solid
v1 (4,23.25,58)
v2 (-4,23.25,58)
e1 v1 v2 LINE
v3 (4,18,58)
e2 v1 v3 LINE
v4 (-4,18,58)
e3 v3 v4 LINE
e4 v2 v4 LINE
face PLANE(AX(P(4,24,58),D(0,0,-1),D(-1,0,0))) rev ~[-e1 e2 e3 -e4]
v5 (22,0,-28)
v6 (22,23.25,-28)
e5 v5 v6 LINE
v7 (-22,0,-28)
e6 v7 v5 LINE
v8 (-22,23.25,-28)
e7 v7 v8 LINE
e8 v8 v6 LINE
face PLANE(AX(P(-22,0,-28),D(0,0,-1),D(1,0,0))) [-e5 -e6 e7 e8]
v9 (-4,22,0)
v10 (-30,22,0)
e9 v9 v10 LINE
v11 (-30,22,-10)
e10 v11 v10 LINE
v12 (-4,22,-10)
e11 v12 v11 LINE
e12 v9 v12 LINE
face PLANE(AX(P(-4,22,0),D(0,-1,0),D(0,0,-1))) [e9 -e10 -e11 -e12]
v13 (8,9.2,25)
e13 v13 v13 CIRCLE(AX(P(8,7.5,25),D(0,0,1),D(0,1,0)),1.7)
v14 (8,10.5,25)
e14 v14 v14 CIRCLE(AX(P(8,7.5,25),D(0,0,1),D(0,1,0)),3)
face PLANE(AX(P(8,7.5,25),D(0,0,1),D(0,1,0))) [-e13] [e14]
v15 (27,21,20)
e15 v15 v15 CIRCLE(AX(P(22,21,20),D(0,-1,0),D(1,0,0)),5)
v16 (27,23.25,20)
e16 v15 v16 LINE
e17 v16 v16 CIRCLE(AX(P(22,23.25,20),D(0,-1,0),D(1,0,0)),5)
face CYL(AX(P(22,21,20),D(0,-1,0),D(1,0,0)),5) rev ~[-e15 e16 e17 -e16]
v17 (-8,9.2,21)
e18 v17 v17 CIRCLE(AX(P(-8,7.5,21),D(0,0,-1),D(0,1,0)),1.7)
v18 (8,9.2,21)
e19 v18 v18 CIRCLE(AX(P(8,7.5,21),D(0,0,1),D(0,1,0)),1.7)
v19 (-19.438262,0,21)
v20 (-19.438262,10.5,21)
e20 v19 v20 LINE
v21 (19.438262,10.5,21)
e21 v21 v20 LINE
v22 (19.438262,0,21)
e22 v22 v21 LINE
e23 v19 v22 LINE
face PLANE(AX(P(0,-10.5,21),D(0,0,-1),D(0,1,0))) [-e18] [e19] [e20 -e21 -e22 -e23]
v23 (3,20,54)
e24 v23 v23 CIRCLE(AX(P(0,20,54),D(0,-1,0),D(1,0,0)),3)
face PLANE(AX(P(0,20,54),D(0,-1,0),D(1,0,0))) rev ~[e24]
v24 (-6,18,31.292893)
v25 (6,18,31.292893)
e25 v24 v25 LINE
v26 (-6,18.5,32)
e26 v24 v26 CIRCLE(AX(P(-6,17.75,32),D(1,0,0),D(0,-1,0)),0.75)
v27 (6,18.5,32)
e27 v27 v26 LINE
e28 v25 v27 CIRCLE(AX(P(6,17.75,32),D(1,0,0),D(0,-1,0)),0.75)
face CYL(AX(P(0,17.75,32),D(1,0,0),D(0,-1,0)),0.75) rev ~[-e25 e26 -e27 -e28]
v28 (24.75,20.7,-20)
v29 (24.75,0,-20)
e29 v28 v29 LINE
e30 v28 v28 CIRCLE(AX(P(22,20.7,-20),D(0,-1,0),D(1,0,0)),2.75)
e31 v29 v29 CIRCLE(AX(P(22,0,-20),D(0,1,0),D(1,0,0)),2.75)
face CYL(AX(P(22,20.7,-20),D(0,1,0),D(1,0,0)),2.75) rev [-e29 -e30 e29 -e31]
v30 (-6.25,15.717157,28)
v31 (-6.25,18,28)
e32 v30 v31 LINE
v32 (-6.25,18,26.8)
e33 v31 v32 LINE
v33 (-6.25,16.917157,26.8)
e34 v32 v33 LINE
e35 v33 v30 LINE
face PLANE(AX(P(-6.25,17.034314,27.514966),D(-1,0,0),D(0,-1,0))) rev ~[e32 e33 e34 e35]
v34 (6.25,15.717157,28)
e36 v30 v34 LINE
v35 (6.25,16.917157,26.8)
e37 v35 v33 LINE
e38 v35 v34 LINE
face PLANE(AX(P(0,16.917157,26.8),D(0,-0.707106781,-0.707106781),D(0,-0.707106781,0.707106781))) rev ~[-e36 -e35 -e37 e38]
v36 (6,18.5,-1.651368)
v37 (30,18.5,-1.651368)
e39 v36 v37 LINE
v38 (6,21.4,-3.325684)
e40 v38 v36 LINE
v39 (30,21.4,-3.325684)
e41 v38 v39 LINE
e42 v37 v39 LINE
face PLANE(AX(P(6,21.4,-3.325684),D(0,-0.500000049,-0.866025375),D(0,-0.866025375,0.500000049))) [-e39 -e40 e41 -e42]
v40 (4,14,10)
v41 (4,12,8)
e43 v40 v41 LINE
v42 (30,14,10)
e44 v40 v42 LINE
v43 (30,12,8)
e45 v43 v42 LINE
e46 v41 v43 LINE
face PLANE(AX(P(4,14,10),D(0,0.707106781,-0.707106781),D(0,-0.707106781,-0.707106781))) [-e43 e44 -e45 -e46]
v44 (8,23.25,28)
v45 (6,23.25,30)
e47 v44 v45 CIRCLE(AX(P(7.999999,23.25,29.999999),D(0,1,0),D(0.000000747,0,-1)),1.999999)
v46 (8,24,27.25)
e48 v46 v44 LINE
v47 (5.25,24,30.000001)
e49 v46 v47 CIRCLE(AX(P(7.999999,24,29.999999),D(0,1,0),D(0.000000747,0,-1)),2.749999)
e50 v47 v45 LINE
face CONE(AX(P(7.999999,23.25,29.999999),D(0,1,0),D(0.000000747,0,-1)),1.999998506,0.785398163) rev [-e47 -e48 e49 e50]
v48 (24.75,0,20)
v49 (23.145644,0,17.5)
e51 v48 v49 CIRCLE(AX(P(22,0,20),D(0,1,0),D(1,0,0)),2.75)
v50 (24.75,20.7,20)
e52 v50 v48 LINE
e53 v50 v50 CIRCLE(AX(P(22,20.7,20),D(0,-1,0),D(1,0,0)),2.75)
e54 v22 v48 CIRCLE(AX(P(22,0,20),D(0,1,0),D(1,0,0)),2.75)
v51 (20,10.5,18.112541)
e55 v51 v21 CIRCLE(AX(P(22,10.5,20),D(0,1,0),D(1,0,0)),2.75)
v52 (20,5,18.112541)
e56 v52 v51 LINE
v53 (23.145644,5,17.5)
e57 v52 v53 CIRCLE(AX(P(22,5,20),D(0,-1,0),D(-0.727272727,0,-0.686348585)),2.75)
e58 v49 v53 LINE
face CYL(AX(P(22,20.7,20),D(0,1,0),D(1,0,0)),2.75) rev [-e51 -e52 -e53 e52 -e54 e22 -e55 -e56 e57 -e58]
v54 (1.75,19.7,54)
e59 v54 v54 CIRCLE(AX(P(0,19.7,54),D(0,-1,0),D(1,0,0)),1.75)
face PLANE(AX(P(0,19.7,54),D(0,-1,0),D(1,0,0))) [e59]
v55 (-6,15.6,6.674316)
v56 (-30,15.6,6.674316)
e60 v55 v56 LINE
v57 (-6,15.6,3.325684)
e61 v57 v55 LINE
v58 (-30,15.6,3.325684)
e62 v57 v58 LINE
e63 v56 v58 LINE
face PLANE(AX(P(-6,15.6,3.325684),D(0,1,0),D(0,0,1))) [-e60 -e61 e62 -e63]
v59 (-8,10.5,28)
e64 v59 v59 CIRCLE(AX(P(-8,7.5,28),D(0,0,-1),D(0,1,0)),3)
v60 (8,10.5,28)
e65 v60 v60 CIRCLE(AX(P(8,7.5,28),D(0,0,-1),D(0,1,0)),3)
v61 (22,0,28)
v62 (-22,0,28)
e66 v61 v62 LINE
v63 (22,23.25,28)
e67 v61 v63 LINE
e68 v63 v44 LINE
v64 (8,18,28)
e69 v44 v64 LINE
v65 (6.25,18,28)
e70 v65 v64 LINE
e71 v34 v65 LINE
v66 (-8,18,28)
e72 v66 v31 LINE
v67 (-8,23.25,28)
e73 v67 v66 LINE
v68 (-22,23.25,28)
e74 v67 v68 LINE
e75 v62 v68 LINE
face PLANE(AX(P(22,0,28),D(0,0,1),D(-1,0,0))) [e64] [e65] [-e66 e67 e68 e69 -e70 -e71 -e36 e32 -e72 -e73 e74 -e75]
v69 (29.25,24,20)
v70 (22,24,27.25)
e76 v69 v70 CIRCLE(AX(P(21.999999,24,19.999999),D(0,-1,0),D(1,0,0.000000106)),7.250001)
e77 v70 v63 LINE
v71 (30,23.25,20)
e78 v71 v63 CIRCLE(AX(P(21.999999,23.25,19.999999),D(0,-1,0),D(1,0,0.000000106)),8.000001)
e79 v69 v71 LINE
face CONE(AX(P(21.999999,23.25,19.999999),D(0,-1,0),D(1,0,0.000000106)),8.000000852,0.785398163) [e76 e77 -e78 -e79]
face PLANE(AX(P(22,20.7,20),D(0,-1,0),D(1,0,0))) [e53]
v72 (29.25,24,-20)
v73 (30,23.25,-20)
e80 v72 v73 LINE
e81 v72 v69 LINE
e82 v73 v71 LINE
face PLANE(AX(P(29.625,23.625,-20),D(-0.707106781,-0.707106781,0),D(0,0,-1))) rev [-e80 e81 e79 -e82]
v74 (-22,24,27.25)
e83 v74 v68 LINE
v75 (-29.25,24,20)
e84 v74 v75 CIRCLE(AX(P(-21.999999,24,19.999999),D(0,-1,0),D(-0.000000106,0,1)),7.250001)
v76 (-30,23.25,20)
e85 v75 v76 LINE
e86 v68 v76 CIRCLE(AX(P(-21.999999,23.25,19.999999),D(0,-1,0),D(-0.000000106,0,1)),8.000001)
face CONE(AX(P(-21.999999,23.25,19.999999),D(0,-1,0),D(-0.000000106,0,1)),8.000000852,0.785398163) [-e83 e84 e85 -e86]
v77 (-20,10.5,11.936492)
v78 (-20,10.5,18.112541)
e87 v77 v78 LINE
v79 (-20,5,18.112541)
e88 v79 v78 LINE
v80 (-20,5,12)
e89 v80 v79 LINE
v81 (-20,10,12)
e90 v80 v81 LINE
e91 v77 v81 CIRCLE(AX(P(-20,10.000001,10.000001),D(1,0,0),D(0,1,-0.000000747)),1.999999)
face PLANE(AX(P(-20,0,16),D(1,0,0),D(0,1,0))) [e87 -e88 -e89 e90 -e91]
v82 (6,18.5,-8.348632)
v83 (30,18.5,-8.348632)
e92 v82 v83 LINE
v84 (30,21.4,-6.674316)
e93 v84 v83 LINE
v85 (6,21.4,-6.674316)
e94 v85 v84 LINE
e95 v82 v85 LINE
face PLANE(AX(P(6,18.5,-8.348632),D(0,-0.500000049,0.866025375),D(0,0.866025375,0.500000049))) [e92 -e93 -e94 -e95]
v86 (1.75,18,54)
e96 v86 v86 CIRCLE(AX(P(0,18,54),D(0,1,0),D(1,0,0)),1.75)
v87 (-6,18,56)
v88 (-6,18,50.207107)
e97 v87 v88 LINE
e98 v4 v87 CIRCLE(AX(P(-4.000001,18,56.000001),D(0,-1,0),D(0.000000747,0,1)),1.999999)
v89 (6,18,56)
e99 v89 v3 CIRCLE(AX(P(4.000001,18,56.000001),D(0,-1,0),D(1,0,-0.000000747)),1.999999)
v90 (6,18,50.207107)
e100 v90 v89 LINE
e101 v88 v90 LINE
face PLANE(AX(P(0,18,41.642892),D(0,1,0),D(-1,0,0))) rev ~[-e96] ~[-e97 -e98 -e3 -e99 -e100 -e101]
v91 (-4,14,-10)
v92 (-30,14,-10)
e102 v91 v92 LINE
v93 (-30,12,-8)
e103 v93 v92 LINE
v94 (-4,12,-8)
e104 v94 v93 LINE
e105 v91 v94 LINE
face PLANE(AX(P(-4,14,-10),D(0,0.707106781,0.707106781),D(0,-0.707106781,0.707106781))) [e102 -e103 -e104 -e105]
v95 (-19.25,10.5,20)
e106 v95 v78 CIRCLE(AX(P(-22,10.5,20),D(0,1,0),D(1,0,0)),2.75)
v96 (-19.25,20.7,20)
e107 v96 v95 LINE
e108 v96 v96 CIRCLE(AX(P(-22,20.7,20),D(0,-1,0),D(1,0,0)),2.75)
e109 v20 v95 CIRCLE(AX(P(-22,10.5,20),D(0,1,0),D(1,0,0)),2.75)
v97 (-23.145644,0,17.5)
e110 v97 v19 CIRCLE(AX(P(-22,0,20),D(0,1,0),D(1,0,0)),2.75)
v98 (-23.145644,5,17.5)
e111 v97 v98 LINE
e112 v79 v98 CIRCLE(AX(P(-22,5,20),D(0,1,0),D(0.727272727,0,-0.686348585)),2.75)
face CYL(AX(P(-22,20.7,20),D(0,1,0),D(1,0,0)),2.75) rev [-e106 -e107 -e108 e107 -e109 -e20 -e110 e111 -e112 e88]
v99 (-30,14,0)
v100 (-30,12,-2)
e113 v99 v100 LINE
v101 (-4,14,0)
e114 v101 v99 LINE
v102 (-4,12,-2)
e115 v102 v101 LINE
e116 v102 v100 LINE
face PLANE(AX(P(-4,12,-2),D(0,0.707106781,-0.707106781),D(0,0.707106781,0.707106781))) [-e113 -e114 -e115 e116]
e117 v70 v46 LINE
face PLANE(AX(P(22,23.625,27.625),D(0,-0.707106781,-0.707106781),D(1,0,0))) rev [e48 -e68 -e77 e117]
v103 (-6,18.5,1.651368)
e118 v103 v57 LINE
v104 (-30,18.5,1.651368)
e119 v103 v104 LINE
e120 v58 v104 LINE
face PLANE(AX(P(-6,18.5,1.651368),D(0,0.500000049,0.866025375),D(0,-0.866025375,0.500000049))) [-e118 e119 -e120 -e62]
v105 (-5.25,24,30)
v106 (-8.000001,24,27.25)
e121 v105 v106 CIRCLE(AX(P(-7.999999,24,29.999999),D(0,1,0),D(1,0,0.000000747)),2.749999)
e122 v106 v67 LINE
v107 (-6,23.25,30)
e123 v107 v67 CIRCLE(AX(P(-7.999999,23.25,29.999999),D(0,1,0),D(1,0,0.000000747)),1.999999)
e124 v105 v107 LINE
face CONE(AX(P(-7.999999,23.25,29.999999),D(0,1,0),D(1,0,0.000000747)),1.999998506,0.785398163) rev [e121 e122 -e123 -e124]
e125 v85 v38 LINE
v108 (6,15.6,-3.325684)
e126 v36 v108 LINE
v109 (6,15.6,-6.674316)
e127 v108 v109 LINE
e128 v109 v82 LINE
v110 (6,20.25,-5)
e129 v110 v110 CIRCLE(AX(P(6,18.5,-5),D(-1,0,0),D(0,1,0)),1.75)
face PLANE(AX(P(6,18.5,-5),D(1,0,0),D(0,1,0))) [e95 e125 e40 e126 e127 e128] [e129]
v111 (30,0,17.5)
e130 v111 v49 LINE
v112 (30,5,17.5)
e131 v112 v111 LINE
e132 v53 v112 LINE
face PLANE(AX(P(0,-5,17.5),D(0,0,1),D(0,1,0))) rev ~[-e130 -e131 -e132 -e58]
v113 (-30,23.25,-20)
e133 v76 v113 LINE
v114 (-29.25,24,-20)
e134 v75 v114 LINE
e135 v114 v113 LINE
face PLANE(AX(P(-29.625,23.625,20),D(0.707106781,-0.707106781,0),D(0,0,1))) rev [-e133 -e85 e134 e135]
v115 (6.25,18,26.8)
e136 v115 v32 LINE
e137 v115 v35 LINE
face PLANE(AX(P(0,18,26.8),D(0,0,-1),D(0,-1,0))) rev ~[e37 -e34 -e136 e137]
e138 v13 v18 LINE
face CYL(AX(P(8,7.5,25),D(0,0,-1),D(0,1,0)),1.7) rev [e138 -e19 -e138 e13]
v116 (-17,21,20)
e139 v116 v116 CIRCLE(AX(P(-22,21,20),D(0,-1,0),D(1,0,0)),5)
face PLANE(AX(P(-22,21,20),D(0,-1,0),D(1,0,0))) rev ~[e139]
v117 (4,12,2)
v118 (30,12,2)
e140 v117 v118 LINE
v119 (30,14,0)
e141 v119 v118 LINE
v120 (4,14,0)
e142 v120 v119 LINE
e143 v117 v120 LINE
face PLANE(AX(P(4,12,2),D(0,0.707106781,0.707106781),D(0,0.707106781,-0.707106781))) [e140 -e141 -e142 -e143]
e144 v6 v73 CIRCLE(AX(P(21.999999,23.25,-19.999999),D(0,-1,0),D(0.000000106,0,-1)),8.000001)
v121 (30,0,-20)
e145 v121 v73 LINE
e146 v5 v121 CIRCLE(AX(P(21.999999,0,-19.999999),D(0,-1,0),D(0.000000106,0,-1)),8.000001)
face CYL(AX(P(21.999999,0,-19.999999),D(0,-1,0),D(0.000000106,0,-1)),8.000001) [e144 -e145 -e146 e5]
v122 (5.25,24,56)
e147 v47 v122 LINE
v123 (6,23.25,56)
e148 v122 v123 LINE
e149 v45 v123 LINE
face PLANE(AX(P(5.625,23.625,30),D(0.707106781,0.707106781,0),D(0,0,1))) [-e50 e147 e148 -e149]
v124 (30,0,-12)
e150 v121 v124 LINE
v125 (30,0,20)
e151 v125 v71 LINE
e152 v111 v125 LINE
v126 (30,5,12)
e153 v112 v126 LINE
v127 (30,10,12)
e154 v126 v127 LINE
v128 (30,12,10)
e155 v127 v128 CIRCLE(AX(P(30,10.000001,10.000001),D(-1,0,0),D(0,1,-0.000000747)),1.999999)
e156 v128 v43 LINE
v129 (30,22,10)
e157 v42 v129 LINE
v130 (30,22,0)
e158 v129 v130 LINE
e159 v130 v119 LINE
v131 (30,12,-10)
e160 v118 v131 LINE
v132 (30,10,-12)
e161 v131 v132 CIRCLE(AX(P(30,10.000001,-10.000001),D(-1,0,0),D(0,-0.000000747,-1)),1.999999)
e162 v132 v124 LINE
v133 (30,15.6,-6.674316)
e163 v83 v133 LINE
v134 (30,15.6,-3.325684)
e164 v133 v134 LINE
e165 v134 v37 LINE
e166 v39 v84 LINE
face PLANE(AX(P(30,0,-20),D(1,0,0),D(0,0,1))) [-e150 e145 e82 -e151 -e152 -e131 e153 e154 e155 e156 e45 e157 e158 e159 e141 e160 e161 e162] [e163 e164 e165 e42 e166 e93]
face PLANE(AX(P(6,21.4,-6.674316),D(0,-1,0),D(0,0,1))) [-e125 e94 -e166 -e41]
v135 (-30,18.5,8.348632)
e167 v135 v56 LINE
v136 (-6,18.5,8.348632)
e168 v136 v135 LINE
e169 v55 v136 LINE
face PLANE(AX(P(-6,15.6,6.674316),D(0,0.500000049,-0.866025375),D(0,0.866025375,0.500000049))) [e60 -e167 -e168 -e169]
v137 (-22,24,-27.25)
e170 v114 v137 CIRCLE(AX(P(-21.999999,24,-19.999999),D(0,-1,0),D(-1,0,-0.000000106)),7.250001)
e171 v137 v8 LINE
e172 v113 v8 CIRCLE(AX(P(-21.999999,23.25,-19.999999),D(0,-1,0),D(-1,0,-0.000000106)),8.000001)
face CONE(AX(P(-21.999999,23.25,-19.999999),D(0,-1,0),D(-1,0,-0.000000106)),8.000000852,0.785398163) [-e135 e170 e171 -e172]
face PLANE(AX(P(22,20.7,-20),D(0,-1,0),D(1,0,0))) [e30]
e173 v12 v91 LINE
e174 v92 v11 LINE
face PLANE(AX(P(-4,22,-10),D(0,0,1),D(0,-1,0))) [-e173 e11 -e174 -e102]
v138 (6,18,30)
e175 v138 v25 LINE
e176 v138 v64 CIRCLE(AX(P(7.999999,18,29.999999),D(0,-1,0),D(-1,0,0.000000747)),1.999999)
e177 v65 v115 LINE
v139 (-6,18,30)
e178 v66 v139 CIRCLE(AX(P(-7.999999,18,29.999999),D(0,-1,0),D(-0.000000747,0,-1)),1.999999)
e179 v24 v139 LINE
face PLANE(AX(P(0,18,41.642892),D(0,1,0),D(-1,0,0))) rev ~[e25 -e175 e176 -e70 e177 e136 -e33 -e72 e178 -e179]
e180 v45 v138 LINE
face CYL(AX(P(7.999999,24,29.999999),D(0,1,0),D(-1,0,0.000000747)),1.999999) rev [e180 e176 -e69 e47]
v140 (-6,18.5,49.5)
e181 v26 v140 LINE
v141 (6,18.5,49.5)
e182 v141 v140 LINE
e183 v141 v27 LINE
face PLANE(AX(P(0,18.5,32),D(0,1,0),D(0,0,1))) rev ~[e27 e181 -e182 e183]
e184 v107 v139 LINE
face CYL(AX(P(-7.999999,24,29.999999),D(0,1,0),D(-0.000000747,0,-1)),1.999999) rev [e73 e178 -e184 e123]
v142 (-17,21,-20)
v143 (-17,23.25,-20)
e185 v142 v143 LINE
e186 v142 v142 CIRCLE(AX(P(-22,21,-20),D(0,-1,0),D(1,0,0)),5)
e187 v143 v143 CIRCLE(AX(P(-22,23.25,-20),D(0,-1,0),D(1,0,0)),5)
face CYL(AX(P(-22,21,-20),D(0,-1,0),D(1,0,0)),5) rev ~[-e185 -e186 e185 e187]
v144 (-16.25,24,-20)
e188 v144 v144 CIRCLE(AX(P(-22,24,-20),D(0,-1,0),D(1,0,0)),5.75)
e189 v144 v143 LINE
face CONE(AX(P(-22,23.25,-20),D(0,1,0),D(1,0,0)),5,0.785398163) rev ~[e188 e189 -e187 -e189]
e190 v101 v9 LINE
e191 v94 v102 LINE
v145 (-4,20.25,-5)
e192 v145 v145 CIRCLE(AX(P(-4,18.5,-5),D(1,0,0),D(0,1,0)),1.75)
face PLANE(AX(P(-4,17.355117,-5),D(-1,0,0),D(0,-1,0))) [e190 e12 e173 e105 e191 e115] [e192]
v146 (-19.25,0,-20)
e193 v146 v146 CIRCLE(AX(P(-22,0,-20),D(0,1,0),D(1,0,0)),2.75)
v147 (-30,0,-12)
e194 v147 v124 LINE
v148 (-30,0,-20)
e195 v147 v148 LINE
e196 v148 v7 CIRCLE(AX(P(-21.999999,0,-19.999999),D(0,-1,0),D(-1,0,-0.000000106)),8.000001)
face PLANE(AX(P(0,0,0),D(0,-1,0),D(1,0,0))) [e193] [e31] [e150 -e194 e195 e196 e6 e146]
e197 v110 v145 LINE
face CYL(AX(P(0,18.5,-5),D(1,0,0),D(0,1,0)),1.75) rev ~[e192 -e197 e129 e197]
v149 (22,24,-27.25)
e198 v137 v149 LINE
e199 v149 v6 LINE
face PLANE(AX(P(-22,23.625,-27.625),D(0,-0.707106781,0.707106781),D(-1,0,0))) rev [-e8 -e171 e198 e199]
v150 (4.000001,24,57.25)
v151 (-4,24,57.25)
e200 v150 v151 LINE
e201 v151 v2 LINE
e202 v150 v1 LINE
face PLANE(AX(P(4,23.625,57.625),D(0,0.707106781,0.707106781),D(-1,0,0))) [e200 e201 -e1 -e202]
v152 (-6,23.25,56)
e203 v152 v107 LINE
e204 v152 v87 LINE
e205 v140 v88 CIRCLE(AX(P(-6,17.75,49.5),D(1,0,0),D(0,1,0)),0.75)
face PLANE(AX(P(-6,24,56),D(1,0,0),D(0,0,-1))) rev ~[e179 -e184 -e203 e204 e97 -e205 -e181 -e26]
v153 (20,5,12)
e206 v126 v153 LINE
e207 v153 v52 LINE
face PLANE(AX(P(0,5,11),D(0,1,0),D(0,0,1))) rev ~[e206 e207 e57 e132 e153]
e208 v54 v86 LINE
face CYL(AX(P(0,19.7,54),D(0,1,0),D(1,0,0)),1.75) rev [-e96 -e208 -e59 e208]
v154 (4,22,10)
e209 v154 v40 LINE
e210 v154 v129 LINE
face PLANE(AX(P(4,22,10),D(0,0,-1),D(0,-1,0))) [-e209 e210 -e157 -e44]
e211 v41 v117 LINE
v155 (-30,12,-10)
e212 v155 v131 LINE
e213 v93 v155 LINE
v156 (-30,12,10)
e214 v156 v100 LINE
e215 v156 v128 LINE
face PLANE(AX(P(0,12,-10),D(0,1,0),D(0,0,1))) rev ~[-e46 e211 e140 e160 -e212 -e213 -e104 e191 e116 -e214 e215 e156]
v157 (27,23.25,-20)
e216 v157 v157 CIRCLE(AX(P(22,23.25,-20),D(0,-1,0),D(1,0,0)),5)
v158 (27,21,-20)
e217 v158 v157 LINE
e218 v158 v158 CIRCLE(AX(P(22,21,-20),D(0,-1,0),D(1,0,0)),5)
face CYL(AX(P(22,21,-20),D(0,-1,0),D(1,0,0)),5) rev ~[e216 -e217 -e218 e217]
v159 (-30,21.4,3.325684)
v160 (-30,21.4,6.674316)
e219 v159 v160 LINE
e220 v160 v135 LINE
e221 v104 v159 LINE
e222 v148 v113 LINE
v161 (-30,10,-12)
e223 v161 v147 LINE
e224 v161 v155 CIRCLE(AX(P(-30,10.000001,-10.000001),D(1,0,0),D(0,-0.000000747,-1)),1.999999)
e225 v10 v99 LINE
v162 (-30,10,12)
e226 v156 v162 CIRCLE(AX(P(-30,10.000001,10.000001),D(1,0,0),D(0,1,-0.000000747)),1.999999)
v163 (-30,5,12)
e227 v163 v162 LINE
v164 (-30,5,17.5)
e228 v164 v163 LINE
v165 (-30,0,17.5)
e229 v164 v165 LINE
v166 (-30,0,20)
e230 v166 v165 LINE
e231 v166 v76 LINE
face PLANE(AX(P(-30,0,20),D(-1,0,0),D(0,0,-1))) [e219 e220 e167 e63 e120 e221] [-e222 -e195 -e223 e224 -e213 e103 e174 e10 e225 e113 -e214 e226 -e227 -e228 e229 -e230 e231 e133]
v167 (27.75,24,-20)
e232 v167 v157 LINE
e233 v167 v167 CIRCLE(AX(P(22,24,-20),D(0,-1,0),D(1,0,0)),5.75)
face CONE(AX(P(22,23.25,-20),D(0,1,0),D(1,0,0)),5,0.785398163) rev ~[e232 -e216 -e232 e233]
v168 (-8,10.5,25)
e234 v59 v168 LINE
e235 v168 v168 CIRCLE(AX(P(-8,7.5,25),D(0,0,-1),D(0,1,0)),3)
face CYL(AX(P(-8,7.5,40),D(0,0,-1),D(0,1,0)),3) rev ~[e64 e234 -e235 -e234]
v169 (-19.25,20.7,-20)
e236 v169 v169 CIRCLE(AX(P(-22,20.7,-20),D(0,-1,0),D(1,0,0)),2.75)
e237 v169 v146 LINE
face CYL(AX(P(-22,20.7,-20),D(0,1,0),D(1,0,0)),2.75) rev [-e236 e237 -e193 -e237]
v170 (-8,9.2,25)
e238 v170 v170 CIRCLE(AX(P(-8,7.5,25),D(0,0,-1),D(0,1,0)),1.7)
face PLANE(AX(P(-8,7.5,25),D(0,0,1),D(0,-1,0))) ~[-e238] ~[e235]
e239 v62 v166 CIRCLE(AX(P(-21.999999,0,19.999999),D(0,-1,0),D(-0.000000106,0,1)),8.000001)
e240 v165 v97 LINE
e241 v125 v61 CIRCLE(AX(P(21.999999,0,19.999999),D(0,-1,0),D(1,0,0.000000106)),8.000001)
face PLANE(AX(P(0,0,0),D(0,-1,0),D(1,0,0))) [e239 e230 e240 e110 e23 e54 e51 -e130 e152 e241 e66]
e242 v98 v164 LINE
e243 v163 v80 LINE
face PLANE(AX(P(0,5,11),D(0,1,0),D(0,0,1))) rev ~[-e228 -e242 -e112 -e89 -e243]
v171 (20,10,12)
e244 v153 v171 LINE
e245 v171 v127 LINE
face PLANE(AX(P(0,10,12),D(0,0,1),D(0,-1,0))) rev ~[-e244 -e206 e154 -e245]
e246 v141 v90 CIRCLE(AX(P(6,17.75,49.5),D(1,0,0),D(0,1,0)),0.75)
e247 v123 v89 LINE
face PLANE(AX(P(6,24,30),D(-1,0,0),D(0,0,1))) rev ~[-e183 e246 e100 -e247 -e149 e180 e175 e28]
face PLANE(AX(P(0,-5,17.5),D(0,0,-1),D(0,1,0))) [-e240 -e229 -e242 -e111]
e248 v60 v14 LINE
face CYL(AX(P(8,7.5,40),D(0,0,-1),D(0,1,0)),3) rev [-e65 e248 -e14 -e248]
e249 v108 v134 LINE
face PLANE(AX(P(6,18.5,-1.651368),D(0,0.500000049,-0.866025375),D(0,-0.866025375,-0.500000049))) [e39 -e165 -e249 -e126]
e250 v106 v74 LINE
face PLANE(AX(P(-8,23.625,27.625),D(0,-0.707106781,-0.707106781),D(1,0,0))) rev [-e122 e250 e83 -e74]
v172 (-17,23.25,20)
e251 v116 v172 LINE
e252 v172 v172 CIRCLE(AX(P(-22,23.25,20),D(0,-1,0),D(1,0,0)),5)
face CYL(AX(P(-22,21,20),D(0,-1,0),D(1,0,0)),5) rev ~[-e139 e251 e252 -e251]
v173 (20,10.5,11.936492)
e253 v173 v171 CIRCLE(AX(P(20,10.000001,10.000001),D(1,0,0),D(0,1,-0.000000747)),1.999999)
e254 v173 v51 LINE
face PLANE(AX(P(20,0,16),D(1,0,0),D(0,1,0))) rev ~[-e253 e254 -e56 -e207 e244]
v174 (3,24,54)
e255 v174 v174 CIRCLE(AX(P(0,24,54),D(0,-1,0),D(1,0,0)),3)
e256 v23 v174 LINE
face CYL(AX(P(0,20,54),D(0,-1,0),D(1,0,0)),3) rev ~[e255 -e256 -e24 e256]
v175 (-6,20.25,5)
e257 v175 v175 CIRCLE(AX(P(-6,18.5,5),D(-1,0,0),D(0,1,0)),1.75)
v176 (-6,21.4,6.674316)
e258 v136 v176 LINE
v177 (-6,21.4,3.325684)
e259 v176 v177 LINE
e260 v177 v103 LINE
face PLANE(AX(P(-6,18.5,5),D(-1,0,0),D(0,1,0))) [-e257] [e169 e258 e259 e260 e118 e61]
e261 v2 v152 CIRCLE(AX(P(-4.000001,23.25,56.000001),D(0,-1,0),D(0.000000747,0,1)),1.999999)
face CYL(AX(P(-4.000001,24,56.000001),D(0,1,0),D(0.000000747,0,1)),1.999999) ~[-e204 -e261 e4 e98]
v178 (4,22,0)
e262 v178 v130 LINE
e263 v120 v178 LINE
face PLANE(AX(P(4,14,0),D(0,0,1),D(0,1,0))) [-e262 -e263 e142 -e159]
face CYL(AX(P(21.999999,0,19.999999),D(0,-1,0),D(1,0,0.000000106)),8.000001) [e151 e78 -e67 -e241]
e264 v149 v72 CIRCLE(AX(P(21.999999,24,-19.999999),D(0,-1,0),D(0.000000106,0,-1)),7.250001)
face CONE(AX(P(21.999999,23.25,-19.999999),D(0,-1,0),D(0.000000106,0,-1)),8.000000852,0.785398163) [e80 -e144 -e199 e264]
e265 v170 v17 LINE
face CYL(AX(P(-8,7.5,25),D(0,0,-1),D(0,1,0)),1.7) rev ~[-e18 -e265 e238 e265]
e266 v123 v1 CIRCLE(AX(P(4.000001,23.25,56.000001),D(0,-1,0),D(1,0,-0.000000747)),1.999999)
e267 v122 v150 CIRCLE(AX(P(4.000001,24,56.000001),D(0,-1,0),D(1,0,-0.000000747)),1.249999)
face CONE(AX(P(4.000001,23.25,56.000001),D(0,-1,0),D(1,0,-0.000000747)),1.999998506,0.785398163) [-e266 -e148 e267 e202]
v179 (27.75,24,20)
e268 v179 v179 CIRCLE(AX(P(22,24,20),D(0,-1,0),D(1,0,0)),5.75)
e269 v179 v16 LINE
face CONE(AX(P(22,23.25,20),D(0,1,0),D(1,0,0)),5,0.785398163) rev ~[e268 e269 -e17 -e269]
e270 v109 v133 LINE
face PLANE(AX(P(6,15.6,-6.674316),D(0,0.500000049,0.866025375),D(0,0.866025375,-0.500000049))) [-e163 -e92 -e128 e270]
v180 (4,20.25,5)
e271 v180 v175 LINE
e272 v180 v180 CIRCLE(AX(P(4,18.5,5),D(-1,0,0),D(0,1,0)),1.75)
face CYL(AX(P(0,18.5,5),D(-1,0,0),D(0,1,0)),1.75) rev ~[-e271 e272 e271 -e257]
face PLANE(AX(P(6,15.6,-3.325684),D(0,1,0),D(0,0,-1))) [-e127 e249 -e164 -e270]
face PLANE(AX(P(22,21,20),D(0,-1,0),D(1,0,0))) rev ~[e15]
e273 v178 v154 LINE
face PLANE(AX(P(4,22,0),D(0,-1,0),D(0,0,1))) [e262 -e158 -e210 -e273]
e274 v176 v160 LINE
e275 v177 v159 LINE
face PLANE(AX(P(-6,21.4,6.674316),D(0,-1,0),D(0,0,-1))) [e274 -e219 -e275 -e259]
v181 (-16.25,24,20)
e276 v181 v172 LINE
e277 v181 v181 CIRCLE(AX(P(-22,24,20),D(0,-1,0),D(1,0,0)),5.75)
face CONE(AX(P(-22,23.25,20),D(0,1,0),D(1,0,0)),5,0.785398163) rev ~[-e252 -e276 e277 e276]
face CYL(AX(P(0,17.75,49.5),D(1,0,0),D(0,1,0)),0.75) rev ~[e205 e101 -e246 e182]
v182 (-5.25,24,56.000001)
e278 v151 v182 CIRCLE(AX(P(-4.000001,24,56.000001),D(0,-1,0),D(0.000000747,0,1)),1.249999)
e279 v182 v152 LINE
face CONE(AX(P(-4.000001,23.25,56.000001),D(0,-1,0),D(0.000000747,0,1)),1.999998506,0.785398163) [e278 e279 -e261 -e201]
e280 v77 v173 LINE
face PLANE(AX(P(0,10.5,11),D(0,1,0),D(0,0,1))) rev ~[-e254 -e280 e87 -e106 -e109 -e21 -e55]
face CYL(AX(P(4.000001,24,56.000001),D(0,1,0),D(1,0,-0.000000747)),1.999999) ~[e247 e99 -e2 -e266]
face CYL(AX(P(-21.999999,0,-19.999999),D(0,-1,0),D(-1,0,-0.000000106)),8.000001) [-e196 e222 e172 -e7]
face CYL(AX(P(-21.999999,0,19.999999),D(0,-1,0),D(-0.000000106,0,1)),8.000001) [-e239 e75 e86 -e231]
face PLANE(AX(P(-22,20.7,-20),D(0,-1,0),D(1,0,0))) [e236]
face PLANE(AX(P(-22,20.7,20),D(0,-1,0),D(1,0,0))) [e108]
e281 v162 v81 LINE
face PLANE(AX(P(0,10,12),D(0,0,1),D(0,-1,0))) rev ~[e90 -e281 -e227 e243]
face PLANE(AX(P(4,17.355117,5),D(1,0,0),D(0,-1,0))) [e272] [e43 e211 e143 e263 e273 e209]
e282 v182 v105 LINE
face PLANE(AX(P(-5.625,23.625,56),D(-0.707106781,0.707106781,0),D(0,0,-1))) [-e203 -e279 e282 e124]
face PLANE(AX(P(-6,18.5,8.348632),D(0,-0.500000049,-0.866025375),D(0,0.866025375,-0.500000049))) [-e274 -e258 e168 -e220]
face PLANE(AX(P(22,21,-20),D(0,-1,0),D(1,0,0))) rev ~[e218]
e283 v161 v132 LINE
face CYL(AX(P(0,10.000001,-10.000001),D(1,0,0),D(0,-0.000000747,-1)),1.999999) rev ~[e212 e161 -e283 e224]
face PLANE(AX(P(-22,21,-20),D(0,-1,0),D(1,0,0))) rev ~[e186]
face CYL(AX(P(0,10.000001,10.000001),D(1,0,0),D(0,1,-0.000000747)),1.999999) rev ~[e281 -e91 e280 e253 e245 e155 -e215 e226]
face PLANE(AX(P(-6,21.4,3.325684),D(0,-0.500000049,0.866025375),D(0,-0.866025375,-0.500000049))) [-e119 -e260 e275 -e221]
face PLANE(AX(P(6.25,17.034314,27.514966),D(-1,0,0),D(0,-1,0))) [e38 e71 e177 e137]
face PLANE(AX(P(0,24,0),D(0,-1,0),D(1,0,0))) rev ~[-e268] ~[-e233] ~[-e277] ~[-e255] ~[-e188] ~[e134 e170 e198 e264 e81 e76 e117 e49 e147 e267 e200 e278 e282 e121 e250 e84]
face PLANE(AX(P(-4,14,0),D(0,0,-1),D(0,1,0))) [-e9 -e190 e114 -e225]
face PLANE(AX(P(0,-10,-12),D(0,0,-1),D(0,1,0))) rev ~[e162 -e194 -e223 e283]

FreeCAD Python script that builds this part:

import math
import FreeCAD as App
import Part
import Sketcher
Q = App.Units.Quantity


def edges_at(feature, points):
    """Names of the edges that pass closest to the given points."""
    edges = feature.Shape.Edges
    near = lambda p: min(range(len(edges)), key=lambda i: edges[i].distToShape(Part.Vertex(*p))[0])
    return sorted({f"Edge{near(p) + 1}" for p in points})


def add_polygon(sketch, points):
    """Adds a closed chain of lines whose ends are joined by coincident constraints."""
    first, n = sketch.GeometryCount, len(points)
    for a, b in zip(points, points[1:] + points[:1]):
        sketch.addGeometry(Part.LineSegment(App.Vector(*a, 0), App.Vector(*b, 0)), False)
    for i in range(n):
        sketch.addConstraint(Sketcher.Constraint("Coincident", first + i, 2, first + (i + 1) % n, 1))

doc = App.newDocument("Part")
params = doc.addObject("Spreadsheet::Sheet", "Params")
for row, (alias, value) in enumerate([
    ("sketch1_radius", "8.000001 mm"),
    ("sketch1_width", "44 mm"),
    ("sketch1_height", "40 mm"),
    ("pad1_length", "24 mm"),
    ("sketch2_radius", "1.999999 mm"),
    ("sketch2_width", "20 mm"),
    ("sketch3_diameter", "5.5 mm"),
    ("sketch4_diameter", "10 mm"),
    ("pocket3_length", "5 mm"),
    ("sketch5_radius", "1.999999 mm"),
    ("sketch5_width", "8 mm"),
    ("sketch5_height", "26 mm"),
    ("pad2_length", "6 mm"),
    ("sketch6_radius", "0.75 mm"),
    ("sketch6_height", "1.2 mm"),
    ("sketch6_height2", "17.5 mm"),
    ("pocket4_length", "12.5 mm"),
    ("sketch7_diameter", "3.5 mm"),
    ("pocket5_length", "5 mm"),
    ("sketch8_diameter", "6 mm"),
    ("pocket6_length", "5 mm"),
    ("chamfer_size", "0.75 mm"),
    ("sketch9_width", "10 mm"),
    ("sketch9_height", "6.5 mm"),
    ("sketch10_width", "21 mm"),
    ("sketch10_height", "10 mm"),
    ("pocket8_length", "40 mm"),
    ("sketch11_width", "44 mm"),
    ("sketch11_height", "20 mm"),
    ("pocket9_length", "5 mm"),
    ("sketch12_width", "3 mm"),
    ("sketch12_height", "19 mm"),
    ("sketch12_height2", "4 mm"),
    ("sketch12_width2", "1.7 mm"),
    ("groove_angle", "360 deg"),
    ("sketch13_width", "8 mm"),
    ("sketch13_height", "6 mm"),
    ("sketch13_height2", "10 mm"),
    ("sketch14_diameter", "3.5 mm"),
], start=1):
    params.set(f"A{row}", alias)
    params.set(f"B{row}", "=" + value)
    params.setAlias(f"B{row}", alias)

body = doc.addObject("PartDesign::Body", "Body")

# Sketch on XZ plane
sketch1 = doc.addObject("Sketcher::SketchObject", "Sketch")
body.addObject(sketch1)
sketch1.AttachmentSupport = (doc.XZ_Plane, [""])
sketch1.MapMode = "FlatFace"
sketch1.addGeometry([
    Part.LineSegment(App.Vector(-30, 20, 0), App.Vector(-30, -20, 0)),  # 0
    Part.ArcOfCircle(Part.Circle(App.Vector(-21.999999, -19.999999, 0), App.Vector(0, 0, 1), 8.000001), math.radians(-179.999994), math.radians(-90.000006)),  # 1
    Part.LineSegment(App.Vector(-22, -28, 0), App.Vector(22, -28, 0)),  # 2
    Part.ArcOfCircle(Part.Circle(App.Vector(21.999999, -19.999999, 0), App.Vector(0, 0, 1), 8.000001), math.radians(-89.999994), math.radians(-0.000006)),  # 3
    Part.LineSegment(App.Vector(30, -20, 0), App.Vector(30, 20, 0)),  # 4
    Part.ArcOfCircle(Part.Circle(App.Vector(21.999999, 19.999999, 0), App.Vector(0, 0, 1), 8.000001), math.radians(0.000006), math.radians(89.999994)),  # 5
    Part.LineSegment(App.Vector(22, 28, 0), App.Vector(-22, 28, 0)),  # 6
    Part.ArcOfCircle(Part.Circle(App.Vector(-21.999999, 19.999999, 0), App.Vector(0, 0, 1), 8.000001), math.radians(90.000006), math.radians(179.999994)),  # 7
], False)
sketch1.addConstraint([
    Sketcher.Constraint("Tangent", 0, 2, 1, 1),
    Sketcher.Constraint("Tangent", 1, 2, 2, 1),
    Sketcher.Constraint("Tangent", 2, 2, 3, 1),
    Sketcher.Constraint("Tangent", 3, 2, 4, 1),
    Sketcher.Constraint("Tangent", 4, 2, 5, 1),
    Sketcher.Constraint("Tangent", 5, 2, 6, 1),
    Sketcher.Constraint("Tangent", 6, 2, 7, 1),
    Sketcher.Constraint("Tangent", 7, 2, 0, 1),
    Sketcher.Constraint("Vertical", 0),
    Sketcher.Constraint("Horizontal", 2),
    Sketcher.Constraint("Vertical", 4),
    Sketcher.Constraint("Horizontal", 6),
    Sketcher.Constraint("Equal", 1, 3),
    Sketcher.Constraint("Equal", 3, 5),
    Sketcher.Constraint("Equal", 5, 7),
    Sketcher.Constraint("Symmetric", 1, 3, 5, 3, -1, 1),
    Sketcher.Constraint("Radius", 1, Q("8.000001 mm")),
    Sketcher.Constraint("DistanceX", 2, 1, 2, 2, Q("44 mm")),
    Sketcher.Constraint("DistanceY", 0, 2, 0, 1, Q("40 mm")),
])
sketch1.setExpression("Constraints[16]", "Params.sketch1_radius")
sketch1.setExpression("Constraints[17]", "Params.sketch1_width")
sketch1.setExpression("Constraints[18]", "Params.sketch1_height")
pad1 = doc.addObject("PartDesign::Pad", "Pad")
body.addObject(pad1)
pad1.Profile = sketch1
pad1.setExpression("Length", "Params.pad1_length")
pad1.Reversed = True

# Sketch on YZ plane
sketch2 = doc.addObject("Sketcher::SketchObject", "Sketch001")
body.addObject(sketch2)
sketch2.AttachmentSupport = (doc.YZ_Plane, [""])
sketch2.MapMode = "FlatFace"
sketch2.addGeometry([
    Part.LineSegment(App.Vector(-12, 10, 0), App.Vector(-12, -10, 0)),  # 0
    Part.ArcOfCircle(Part.Circle(App.Vector(-10.000001, -10.000001, 0), App.Vector(0, 0, 1), 1.999999), math.radians(179.999957), math.radians(270.000043)),  # 1
    Part.LineSegment(App.Vector(-10, -12, 0), App.Vector(10, -12, 0)),  # 2
    Part.ArcOfCircle(Part.Circle(App.Vector(10.000001, -10.000001, 0), App.Vector(0, 0, 1), 1.999999), math.radians(-90.000043), math.radians(0.000043)),  # 3
    Part.LineSegment(App.Vector(12, -10, 0), App.Vector(12, 10, 0)),  # 4
    Part.ArcOfCircle(Part.Circle(App.Vector(10.000001, 10.000001, 0), App.Vector(0, 0, 1), 1.999999), math.radians(-0.000043), math.radians(90.000043)),  # 5
    Part.LineSegment(App.Vector(10, 12, 0), App.Vector(-10, 12, 0)),  # 6
    Part.ArcOfCircle(Part.Circle(App.Vector(-10.000001, 10.000001, 0), App.Vector(0, 0, 1), 1.999999), math.radians(89.999957), math.radians(180.000043)),  # 7
], False)
sketch2.addConstraint([
    Sketcher.Constraint("Tangent", 0, 2, 1, 1),
    Sketcher.Constraint("Tangent", 1, 2, 2, 1),
    Sketcher.Constraint("Tangent", 2, 2, 3, 1),
    Sketcher.Constraint("Tangent", 3, 2, 4, 1),
    Sketcher.Constraint("Tangent", 4, 2, 5, 1),
    Sketcher.Constraint("Tangent", 5, 2, 6, 1),
    Sketcher.Constraint("Tangent", 6, 2, 7, 1),
    Sketcher.Constraint("Tangent", 7, 2, 0, 1),
    Sketcher.Constraint("Vertical", 0),
    Sketcher.Constraint("Horizontal", 2),
    Sketcher.Constraint("Vertical", 4),
    Sketcher.Constraint("Horizontal", 6),
    Sketcher.Constraint("Equal", 1, 3),
    Sketcher.Constraint("Equal", 3, 5),
    Sketcher.Constraint("Equal", 5, 7),
    Sketcher.Constraint("Symmetric", 1, 3, 5, 3, -1, 1),
    Sketcher.Constraint("Equal", 6, 0),
    Sketcher.Constraint("Radius", 1, Q("1.999999 mm")),
    Sketcher.Constraint("DistanceX", 2, 1, 2, 2, Q("20 mm")),
])
sketch2.setExpression("Constraints[17]", "Params.sketch2_radius")
sketch2.setExpression("Constraints[18]", "Params.sketch2_width")
pocket1 = doc.addObject("PartDesign::Pocket", "Pocket")
body.addObject(pocket1)
pocket1.Profile = sketch2
pocket1.Type = "ThroughAll"
pocket1.Midplane = True

# Sketch on XZ plane
sketch3 = doc.addObject("Sketcher::SketchObject", "Sketch002")
body.addObject(sketch3)
sketch3.AttachmentSupport = (doc.XZ_Plane, [""])
sketch3.MapMode = "FlatFace"
sketch3.AttachmentOffset = App.Placement(App.Vector(0, 0, -20.7), App.Rotation())
sketch3.addGeometry([
    Part.Circle(App.Vector(-22, 20, 0), App.Vector(0, 0, 1), 2.75),
    Part.Circle(App.Vector(22, 20, 0), App.Vector(0, 0, 1), 2.75),
    Part.Circle(App.Vector(-22, -20, 0), App.Vector(0, 0, 1), 2.75),
    Part.Circle(App.Vector(22, -20, 0), App.Vector(0, 0, 1), 2.75),
], False)
sketch3.addConstraint([
    Sketcher.Constraint("Equal", 0, 1),
    Sketcher.Constraint("Equal", 1, 2),
    Sketcher.Constraint("Equal", 2, 3),
    Sketcher.Constraint("Symmetric", 1, 3, 2, 3, -1, 1),
    Sketcher.Constraint("Symmetric", 0, 3, 3, 3, -1, 1),
    Sketcher.Constraint("Symmetric", 0, 3, 1, 3, -2),
    Sketcher.Constraint("Diameter", 0, Q("5.5 mm")),
    Sketcher.Constraint("DistanceX", 0, 3, -1, 1, Q("22 mm")),
    Sketcher.Constraint("DistanceY", -1, 1, 0, 3, Q("20 mm")),
])
sketch3.setExpression("Constraints[6]", "Params.sketch3_diameter")
pocket2 = doc.addObject("PartDesign::Pocket", "Pocket001")
body.addObject(pocket2)
pocket2.Profile = sketch3
pocket2.Type = "ThroughAll"
pocket2.Reversed = True

# Sketch on XZ plane
sketch4 = doc.addObject("Sketcher::SketchObject", "Sketch003")
body.addObject(sketch4)
sketch4.AttachmentSupport = (doc.XZ_Plane, [""])
sketch4.MapMode = "FlatFace"
sketch4.AttachmentOffset = App.Placement(App.Vector(0, 0, -21), App.Rotation())
sketch4.addGeometry([
    Part.Circle(App.Vector(-22, 20, 0), App.Vector(0, 0, 1), 5),
    Part.Circle(App.Vector(22, 20, 0), App.Vector(0, 0, 1), 5),
    Part.Circle(App.Vector(-22, -20, 0), App.Vector(0, 0, 1), 5),
    Part.Circle(App.Vector(22, -20, 0), App.Vector(0, 0, 1), 5),
], False)
sketch4.addConstraint([
    Sketcher.Constraint("Equal", 0, 1),
    Sketcher.Constraint("Equal", 1, 2),
    Sketcher.Constraint("Equal", 2, 3),
    Sketcher.Constraint("Symmetric", 1, 3, 2, 3, -1, 1),
    Sketcher.Constraint("Symmetric", 0, 3, 3, 3, -1, 1),
    Sketcher.Constraint("Symmetric", 0, 3, 1, 3, -2),
    Sketcher.Constraint("Diameter", 0, Q("10 mm")),
    Sketcher.Constraint("DistanceX", 0, 3, -1, 1, Q("22 mm")),
    Sketcher.Constraint("DistanceY", -1, 1, 0, 3, Q("20 mm")),
])
sketch4.setExpression("Constraints[6]", "Params.sketch4_diameter")
pocket3 = doc.addObject("PartDesign::Pocket", "Pocket002")
body.addObject(pocket3)
pocket3.Profile = sketch4
pocket3.setExpression("Length", "Params.pocket3_length")

# Sketch on XZ plane
sketch5 = doc.addObject("Sketcher::SketchObject", "Sketch004")
body.addObject(sketch5)
sketch5.AttachmentSupport = (doc.XZ_Plane, [""])
sketch5.MapMode = "FlatFace"
sketch5.AttachmentOffset = App.Placement(App.Vector(0, 0, -24), App.Rotation())
sketch5.addGeometry([
    Part.ArcOfCircle(Part.Circle(App.Vector(7.999999, 29.999999, 0), App.Vector(0, 0, 1), 1.999999), math.radians(179.999957), math.radians(270.000043)),  # 0
    Part.LineSegment(App.Vector(6, 30, 0), App.Vector(6, 56, 0)),  # 1
    Part.ArcOfCircle(Part.Circle(App.Vector(4.000001, 56.000001, 0), App.Vector(0, 0, 1), 1.999999), math.radians(-0.000043), math.radians(90.000043)),  # 2
    Part.LineSegment(App.Vector(4, 58, 0), App.Vector(-4, 58, 0)),  # 3
    Part.ArcOfCircle(Part.Circle(App.Vector(-4.000001, 56.000001, 0), App.Vector(0, 0, 1), 1.999999), math.radians(89.999957), math.radians(180.000043)),  # 4
    Part.LineSegment(App.Vector(-6, 56, 0), App.Vector(-6, 30, 0)),  # 5
    Part.ArcOfCircle(Part.Circle(App.Vector(-7.999999, 29.999999, 0), App.Vector(0, 0, 1), 1.999999), math.radians(-90.000043), math.radians(0.000043)),  # 6
    Part.LineSegment(App.Vector(-8, 28, 0), App.Vector(8, 28, 0)),  # 7
], False)
sketch5.addConstraint([
    Sketcher.Constraint("Tangent", 0, 1, 1, 1),
    Sketcher.Constraint("Tangent", 1, 2, 2, 1),
    Sketcher.Constraint("Tangent", 2, 2, 3, 1),
    Sketcher.Constraint("Tangent", 3, 2, 4, 1),
    Sketcher.Constraint("Tangent", 4, 2, 5, 1),
    Sketcher.Constraint("Tangent", 5, 2, 6, 2),
    Sketcher.Constraint("Tangent", 6, 1, 7, 1),
    Sketcher.Constraint("Tangent", 7, 2, 0, 2),
    Sketcher.Constraint("Vertical", 1),
    Sketcher.Constraint("Horizontal", 3),
    Sketcher.Constraint("Vertical", 5),
    Sketcher.Constraint("Horizontal", 7),
    Sketcher.Constraint("Equal", 0, 2),
    Sketcher.Constraint("Equal", 2, 4),
    Sketcher.Constraint("Equal", 4, 6),
    Sketcher.Constraint("Radius", 0, Q("1.999999 mm")),
    Sketcher.Constraint("DistanceX", 3, 2, 3, 1, Q("8 mm")),
    Sketcher.Constraint("DistanceY", 1, 1, 1, 2, Q("26 mm")),
    Sketcher.Constraint("DistanceX", -1, 1, 0, 3, Q("7.999999 mm")),
    Sketcher.Constraint("DistanceY", -1, 1, 0, 3, Q("29.999999 mm")),
])
sketch5.setExpression("Constraints[15]", "Params.sketch5_radius")
sketch5.setExpression("Constraints[16]", "Params.sketch5_width")
sketch5.setExpression("Constraints[17]", "Params.sketch5_height")
pad2 = doc.addObject("PartDesign::Pad", "Pad001")
body.addObject(pad2)
pad2.Profile = sketch5
pad2.setExpression("Length", "Params.pad2_length")

# Sketch on YZ plane
sketch6 = doc.addObject("Sketcher::SketchObject", "Sketch005")
body.addObject(sketch6)
sketch6.AttachmentSupport = (doc.YZ_Plane, [""])
sketch6.MapMode = "FlatFace"
add_polygon(sketch6, [(18, 26.8), (18, 28), (15.717157, 28), (16.917157, 26.8)])  # lines 0-3
sketch6.addGeometry(Part.ArcOfCircle(Part.Circle(App.Vector(17.75, 49.5, 0), App.Vector(0, 0, 1), 0.75), math.radians(0), math.radians(180)), False)  # 4
sketch6.addGeometry(Part.LineSegment(App.Vector(17, 49.5, 0), App.Vector(17, 32, 0)), False)  # 5
sketch6.addGeometry(Part.ArcOfCircle(Part.Circle(App.Vector(17.75, 32, 0), App.Vector(0, 0, 1), 0.75), math.radians(180), math.radians(360)), False)  # 6
sketch6.addGeometry(Part.LineSegment(App.Vector(18.5, 32, 0), App.Vector(18.5, 49.5, 0)), False)  # 7
sketch6.addConstraint([
    Sketcher.Constraint("Tangent", 4, 2, 5, 1),
    Sketcher.Constraint("Tangent", 5, 2, 6, 1),
    Sketcher.Constraint("Tangent", 6, 2, 7, 1),
    Sketcher.Constraint("Tangent", 7, 2, 4, 1),
    Sketcher.Constraint("Vertical", 0),
    Sketcher.Constraint("Horizontal", 1),
    Sketcher.Constraint("Horizontal", 3),
    Sketcher.Constraint("Vertical", 5),
    Sketcher.Constraint("Vertical", 7),
    Sketcher.Constraint("Angle", 2, Q("-45 deg")),
    Sketcher.Constraint("Radius", 4, Q("0.75 mm")),
    Sketcher.Constraint("DistanceY", 0, 1, 0, 2, Q("1.2 mm")),
    Sketcher.Constraint("DistanceY", 5, 2, 5, 1, Q("17.5 mm")),
    Sketcher.Constraint("DistanceY", -1, 1, 6, 3, Q("32 mm")),
    Sketcher.Constraint("DistanceX", -1, 1, 0, 2, Q("18 mm")),
    Sketcher.Constraint("DistanceY", -1, 1, 0, 2, Q("28 mm")),
    Sketcher.Constraint("DistanceX", -1, 1, 4, 2, Q("17 mm")),
    Sketcher.Constraint("DistanceX", 1, 2, 1, 1, Q("2.282843 mm")),
])
sketch6.setExpression("Constraints[14]", "Params.sketch6_radius")
sketch6.setExpression("Constraints[15]", "Params.sketch6_height")
sketch6.setExpression("Constraints[16]", "Params.sketch6_height2")
pocket4 = doc.addObject("PartDesign::Pocket", "Pocket003")
body.addObject(pocket4)
pocket4.Profile = sketch6
pocket4.setExpression("Length", "Params.pocket4_length")
pocket4.Midplane = True

# Sketch on XZ plane
sketch7 = doc.addObject("Sketcher::SketchObject", "Sketch006")
body.addObject(sketch7)
sketch7.AttachmentSupport = (doc.XZ_Plane, [""])
sketch7.MapMode = "FlatFace"
sketch7.AttachmentOffset = App.Placement(App.Vector(0, 0, -19.7), App.Rotation())
sketch7.addGeometry(Part.Circle(App.Vector(0, 54, 0), App.Vector(0, 0, 1), 1.75), False)
sketch7.addConstraint([
    Sketcher.Constraint("PointOnObject", 0, 3, -2),
    Sketcher.Constraint("Diameter", 0, Q("3.5 mm")),
    Sketcher.Constraint("DistanceY", -1, 1, 0, 3, Q("54 mm")),
])
sketch7.setExpression("Constraints[1]", "Params.sketch7_diameter")
pocket5 = doc.addObject("PartDesign::Pocket", "Pocket004")
body.addObject(pocket5)
pocket5.Profile = sketch7
pocket5.setExpression("Length", "Params.pocket5_length")
pocket5.Reversed = True

# Sketch on XZ plane
sketch8 = doc.addObject("Sketcher::SketchObject", "Sketch007")
body.addObject(sketch8)
sketch8.AttachmentSupport = (doc.XZ_Plane, [""])
sketch8.MapMode = "FlatFace"
sketch8.AttachmentOffset = App.Placement(App.Vector(0, 0, -20), App.Rotation())
sketch8.addGeometry(Part.Circle(App.Vector(0, 54, 0), App.Vector(0, 0, 1), 3), False)
sketch8.addConstraint([
    Sketcher.Constraint("PointOnObject", 0, 3, -2),
    Sketcher.Constraint("Diameter", 0, Q("6 mm")),
    Sketcher.Constraint("DistanceY", -1, 1, 0, 3, Q("54 mm")),
])
sketch8.setExpression("Constraints[1]", "Params.sketch8_diameter")
pocket6 = doc.addObject("PartDesign::Pocket", "Pocket005")
body.addObject(pocket6)
pocket6.Profile = sketch8
pocket6.setExpression("Length", "Params.pocket6_length")
doc.recompute()

chamfer = doc.addObject("PartDesign::Chamfer", "Chamfer")
body.addObject(chamfer)
chamfer.Base = (pocket6, edges_at(pocket6, [
    (15, 24, 28),
    (17, 24, 20),
    (-27, 24, 20),
    (-27, 24, -20),
    (17, 24, -20),
]))
chamfer.setExpression("Size", "Params.chamfer_size")

# Sketch on YZ plane
sketch9 = doc.addObject("Sketcher::SketchObject", "Sketch008")
body.addObject(sketch9)
sketch9.AttachmentSupport = (doc.YZ_Plane, [""])
sketch9.MapMode = "FlatFace"
add_polygon(sketch9, [(-5, 17.5), (-5, 11), (5, 11), (5, 17.5)])  # lines 0-3
sketch9.addConstraint([
    Sketcher.Constraint("Vertical", 0),
    Sketcher.Constraint("Horizontal", 1),
    Sketcher.Constraint("Vertical", 2),
    Sketcher.Constraint("Horizontal", 3),
    Sketcher.Constraint("DistanceX", 1, 1, 1, 2, Q("10 mm")),
    Sketcher.Constraint("DistanceY", 0, 2, 0, 1, Q("6.5 mm")),
    Sketcher.Constraint("DistanceX", 0, 2, -1, 1, Q("5 mm")),
    Sketcher.Constraint("DistanceY", -1, 1, 0, 2, Q("11 mm")),
])
sketch9.setExpression("Constraints[8]", "Params.sketch9_width")
sketch9.setExpression("Constraints[9]", "Params.sketch9_height")
pocket7 = doc.addObject("PartDesign::Pocket", "Pocket006")
body.addObject(pocket7)
pocket7.Profile = sketch9
pocket7.Type = "ThroughAll"
pocket7.Midplane = True

# Sketch on YZ plane
sketch10 = doc.addObject("Sketcher::SketchObject", "Sketch009")
body.addObject(sketch10)
sketch10.AttachmentSupport = (doc.YZ_Plane, [""])
sketch10.MapMode = "FlatFace"
add_polygon(sketch10, [(-10.5, 21), (-10.5, 11), (10.5, 11), (10.5, 21)])  # lines 0-3
sketch10.addConstraint([
    Sketcher.Constraint("Vertical", 0),
    Sketcher.Constraint("Horizontal", 1),
    Sketcher.Constraint("Vertical", 2),
    Sketcher.Constraint("Horizontal", 3),
    Sketcher.Constraint("DistanceX", 1, 1, 1, 2, Q("21 mm")),
    Sketcher.Constraint("DistanceY", 0, 2, 0, 1, Q("10 mm")),
    Sketcher.Constraint("DistanceY", -1, 1, 0, 2, Q("11 mm")),
    Sketcher.Constraint("DistanceX", 0, 2, -1, 1, Q("10.5 mm")),
])
sketch10.setExpression("Constraints[8]", "Params.sketch10_width")
sketch10.setExpression("Constraints[9]", "Params.sketch10_height")
pocket8 = doc.addObject("PartDesign::Pocket", "Pocket007")
body.addObject(pocket8)
pocket8.Profile = sketch10
pocket8.setExpression("Length", "Params.pocket8_length")
pocket8.Midplane = True

# Sketch on XZ plane
sketch11 = doc.addObject("Sketcher::SketchObject", "Sketch010")
body.addObject(sketch11)
sketch11.AttachmentSupport = (doc.XZ_Plane, [""])
sketch11.MapMode = "FlatFace"
add_polygon(sketch11, [(-22, 20), (-22, 0), (22, 0), (22, 20)])  # lines 0-3
sketch11.addConstraint([
    Sketcher.Constraint("Vertical", 0),
    Sketcher.Constraint("Horizontal", 1),
    Sketcher.Constraint("Vertical", 2),
    Sketcher.Constraint("Horizontal", 3),
    Sketcher.Constraint("Symmetric", 0, 2, 1, 2, -1, 1),
    Sketcher.Constraint("DistanceX", 1, 1, 1, 2, Q("44 mm")),
    Sketcher.Constraint("DistanceY", 0, 2, 0, 1, Q("20 mm")),
])
sketch11.setExpression("Constraints[9]", "Params.sketch11_width")
sketch11.setExpression("Constraints[10]", "Params.sketch11_height")
pocket9 = doc.addObject("PartDesign::Pocket", "Pocket008")
body.addObject(pocket9)
pocket9.Profile = sketch11
pocket9.setExpression("Length", "Params.pocket9_length")

# Sketch on YZ plane
sketch12 = doc.addObject("Sketcher::SketchObject", "Sketch011")
body.addObject(sketch12)
sketch12.AttachmentSupport = (doc.YZ_Plane, [""])
sketch12.MapMode = "FlatFace"
sketch12.AttachmentOffset = App.Placement(App.Vector(0, 0, 8), App.Rotation())
add_polygon(sketch12, [(10.5, 40), (7.5, 40), (7.5, 21), (9.2, 21), (9.2, 25), (10.5, 25)])  # lines 0-5
sketch12.addGeometry(Part.LineSegment(App.Vector(7.5, 21, 0), App.Vector(7.5, 40, 0)), True)  # axis
sketch12.addConstraint([
    Sketcher.Constraint("Horizontal", 0),
    Sketcher.Constraint("Vertical", 1),
    Sketcher.Constraint("Horizontal", 2),
    Sketcher.Constraint("Vertical", 3),
    Sketcher.Constraint("Horizontal", 4),
    Sketcher.Constraint("Vertical", 5),
    Sketcher.Constraint("Vertical", 6),
    Sketcher.Constraint("Coincident", 6, 1, 1, 2),
    Sketcher.Constraint("Horizontal", 5, 2, 6, 2),
    Sketcher.Constraint("DistanceX", 0, 2, 0, 1, Q("3 mm")),
    Sketcher.Constraint("DistanceY", 1, 2, 1, 1, Q("19 mm")),
    Sketcher.Constraint("DistanceY", 3, 1, 3, 2, Q("4 mm")),
    Sketcher.Constraint("DistanceX", 2, 1, 2, 2, Q("1.7 mm")),
    Sketcher.Constraint("DistanceY", -1, 1, 0, 2, Q("40 mm")),
    Sketcher.Constraint("DistanceX", -1, 1, 0, 2, Q("7.5 mm")),
])
sketch12.setExpression("Constraints[15]", "Params.sketch12_width")
sketch12.setExpression("Constraints[16]", "Params.sketch12_height")
sketch12.setExpression("Constraints[17]", "Params.sketch12_height2")
sketch12.setExpression("Constraints[18]", "Params.sketch12_width2")
groove = doc.addObject("PartDesign::Groove", "Groove")
body.addObject(groove)
groove.Profile = sketch12
groove.ReferenceAxis = (sketch12, ["Axis0"])
groove.setExpression("Angle", "Params.groove_angle")
doc.recompute()

mirrored = doc.addObject("PartDesign::Mirrored", "Mirrored")
body.addObject(mirrored)
mirrored.Originals = [groove]
mirrored.MirrorPlane = (doc.YZ_Plane, [""])
body.Tip = mirrored

# Sketch on YZ plane
sketch13 = doc.addObject("Sketcher::SketchObject", "Sketch012")
body.addObject(sketch13)
sketch13.AttachmentSupport = (doc.YZ_Plane, [""])
sketch13.MapMode = "FlatFace"
sketch13.AttachmentOffset = App.Placement(App.Vector(0, 0, -4), App.Rotation())
add_polygon(sketch13, [(22, 0), (14, 0), (12, -2), (12, -8), (14, -10), (22, -10)])  # lines 0-5
sketch13.addConstraint([
    Sketcher.Constraint("Horizontal", 0),
    Sketcher.Constraint("Vertical", 2),
    Sketcher.Constraint("Horizontal", 4),
    Sketcher.Constraint("Vertical", 5),
    Sketcher.Constraint("PointOnObject", 0, 2, -1),
    Sketcher.Constraint("Perpendicular", 1, 3),
    Sketcher.Constraint("Vertical", 0, 2, 3, 2),
    Sketcher.Constraint("Equal", 1, 3),
    Sketcher.Constraint("DistanceX", 0, 2, 0, 1, Q("8 mm")),
    Sketcher.Constraint("DistanceY", 2, 2, 2, 1, Q("6 mm")),
    Sketcher.Constraint("DistanceY", 5, 1, 5, 2, Q("10 mm")),
    Sketcher.Constraint("DistanceX", -1, 1, 0, 2, Q("14 mm")),
])
sketch13.setExpression("Constraints[14]", "Params.sketch13_width")
sketch13.setExpression("Constraints[15]", "Params.sketch13_height")
sketch13.setExpression("Constraints[16]", "Params.sketch13_height2")
pocket10 = doc.addObject("PartDesign::Pocket", "Pocket009")
body.addObject(pocket10)
pocket10.Profile = sketch13
pocket10.Type = "ThroughAll"

# Sketch on YZ plane
sketch14 = doc.addObject("Sketcher::SketchObject", "Sketch013")
body.addObject(sketch14)
sketch14.AttachmentSupport = (doc.YZ_Plane, [""])
sketch14.MapMode = "FlatFace"
sketch14.addGeometry(Part.Circle(App.Vector(18.5, -5, 0), App.Vector(0, 0, 1), 1.75), False)
sketch14.addConstraint([
    Sketcher.Constraint("Diameter", 0, Q("3.5 mm")),
    Sketcher.Constraint("DistanceY", 0, 3, -1, 1, Q("5 mm")),
    Sketcher.Constraint("DistanceX", -1, 1, 0, 3, Q("18.5 mm")),
])
sketch14.setExpression("Constraints[0]", "Params.sketch14_diameter")
pocket11 = doc.addObject("PartDesign::Pocket", "Pocket010")
body.addObject(pocket11)
pocket11.Profile = sketch14
pocket11.Type = "ThroughAll"
pocket11.Midplane = True

# Sketch on YZ plane
sketch15 = doc.addObject("Sketcher::SketchObject", "Sketch014")
body.addObject(sketch15)
sketch15.AttachmentSupport = (doc.YZ_Plane, [""])
sketch15.MapMode = "FlatFace"
sketch15.AttachmentOffset = App.Placement(App.Vector(0, 0, 6), App.Rotation())
add_polygon(sketch15, [(21.4, -6.674316), (21.4, -3.325684), (18.5, -1.651368), (15.6, -3.325684), (15.6, -6.674316), (18.5, -8.348632)])  # lines 0-5
sketch15.addConstraint([
    Sketcher.Constraint("Vertical", 0),
    Sketcher.Constraint("Vertical", 3),
    Sketcher.Constraint("Parallel", 1, 4),
    Sketcher.Constraint("Parallel", 2, 5),
    Sketcher.Constraint("Horizontal", 0, 2, 2, 2),
    Sketcher.Constraint("Horizontal", 3, 2, 5, 2),
    Sketcher.Constraint("Vertical", 1, 2, 4, 2),
    Sketcher.Constraint("Angle", 1, Q("149.999997 deg")),
    Sketcher.Constraint("DistanceX", -1, 1, 0, 2, Q("21.4 mm")),
    Sketcher.Constraint("DistanceX", -1, 1, 1, 2, Q("18.5 mm")),
    Sketcher.Constraint("DistanceY", 0, 1, 0, 2, Q("3.348632 mm")),
    Sketcher.Constraint("DistanceY", 0, 2, -1, 1, Q("3.325684 mm")),
])
pocket12 = doc.addObject("PartDesign::Pocket", "Pocket011")
body.addObject(pocket12)
pocket12.Profile = sketch15
pocket12.Type = "ThroughAll"
pocket12.Reversed = True
doc.recompute()

polarpattern = doc.addObject("PartDesign::PolarPattern", "PolarPattern")
body.addObject(polarpattern)
polarpattern.Originals = [pocket12, pocket10, pocket11]
polarpattern.Axis = (doc.Y_Axis, [""])
polarpattern.Angle = 360
polarpattern.Occurrences = 2
body.Tip = polarpattern

doc.recompute()
